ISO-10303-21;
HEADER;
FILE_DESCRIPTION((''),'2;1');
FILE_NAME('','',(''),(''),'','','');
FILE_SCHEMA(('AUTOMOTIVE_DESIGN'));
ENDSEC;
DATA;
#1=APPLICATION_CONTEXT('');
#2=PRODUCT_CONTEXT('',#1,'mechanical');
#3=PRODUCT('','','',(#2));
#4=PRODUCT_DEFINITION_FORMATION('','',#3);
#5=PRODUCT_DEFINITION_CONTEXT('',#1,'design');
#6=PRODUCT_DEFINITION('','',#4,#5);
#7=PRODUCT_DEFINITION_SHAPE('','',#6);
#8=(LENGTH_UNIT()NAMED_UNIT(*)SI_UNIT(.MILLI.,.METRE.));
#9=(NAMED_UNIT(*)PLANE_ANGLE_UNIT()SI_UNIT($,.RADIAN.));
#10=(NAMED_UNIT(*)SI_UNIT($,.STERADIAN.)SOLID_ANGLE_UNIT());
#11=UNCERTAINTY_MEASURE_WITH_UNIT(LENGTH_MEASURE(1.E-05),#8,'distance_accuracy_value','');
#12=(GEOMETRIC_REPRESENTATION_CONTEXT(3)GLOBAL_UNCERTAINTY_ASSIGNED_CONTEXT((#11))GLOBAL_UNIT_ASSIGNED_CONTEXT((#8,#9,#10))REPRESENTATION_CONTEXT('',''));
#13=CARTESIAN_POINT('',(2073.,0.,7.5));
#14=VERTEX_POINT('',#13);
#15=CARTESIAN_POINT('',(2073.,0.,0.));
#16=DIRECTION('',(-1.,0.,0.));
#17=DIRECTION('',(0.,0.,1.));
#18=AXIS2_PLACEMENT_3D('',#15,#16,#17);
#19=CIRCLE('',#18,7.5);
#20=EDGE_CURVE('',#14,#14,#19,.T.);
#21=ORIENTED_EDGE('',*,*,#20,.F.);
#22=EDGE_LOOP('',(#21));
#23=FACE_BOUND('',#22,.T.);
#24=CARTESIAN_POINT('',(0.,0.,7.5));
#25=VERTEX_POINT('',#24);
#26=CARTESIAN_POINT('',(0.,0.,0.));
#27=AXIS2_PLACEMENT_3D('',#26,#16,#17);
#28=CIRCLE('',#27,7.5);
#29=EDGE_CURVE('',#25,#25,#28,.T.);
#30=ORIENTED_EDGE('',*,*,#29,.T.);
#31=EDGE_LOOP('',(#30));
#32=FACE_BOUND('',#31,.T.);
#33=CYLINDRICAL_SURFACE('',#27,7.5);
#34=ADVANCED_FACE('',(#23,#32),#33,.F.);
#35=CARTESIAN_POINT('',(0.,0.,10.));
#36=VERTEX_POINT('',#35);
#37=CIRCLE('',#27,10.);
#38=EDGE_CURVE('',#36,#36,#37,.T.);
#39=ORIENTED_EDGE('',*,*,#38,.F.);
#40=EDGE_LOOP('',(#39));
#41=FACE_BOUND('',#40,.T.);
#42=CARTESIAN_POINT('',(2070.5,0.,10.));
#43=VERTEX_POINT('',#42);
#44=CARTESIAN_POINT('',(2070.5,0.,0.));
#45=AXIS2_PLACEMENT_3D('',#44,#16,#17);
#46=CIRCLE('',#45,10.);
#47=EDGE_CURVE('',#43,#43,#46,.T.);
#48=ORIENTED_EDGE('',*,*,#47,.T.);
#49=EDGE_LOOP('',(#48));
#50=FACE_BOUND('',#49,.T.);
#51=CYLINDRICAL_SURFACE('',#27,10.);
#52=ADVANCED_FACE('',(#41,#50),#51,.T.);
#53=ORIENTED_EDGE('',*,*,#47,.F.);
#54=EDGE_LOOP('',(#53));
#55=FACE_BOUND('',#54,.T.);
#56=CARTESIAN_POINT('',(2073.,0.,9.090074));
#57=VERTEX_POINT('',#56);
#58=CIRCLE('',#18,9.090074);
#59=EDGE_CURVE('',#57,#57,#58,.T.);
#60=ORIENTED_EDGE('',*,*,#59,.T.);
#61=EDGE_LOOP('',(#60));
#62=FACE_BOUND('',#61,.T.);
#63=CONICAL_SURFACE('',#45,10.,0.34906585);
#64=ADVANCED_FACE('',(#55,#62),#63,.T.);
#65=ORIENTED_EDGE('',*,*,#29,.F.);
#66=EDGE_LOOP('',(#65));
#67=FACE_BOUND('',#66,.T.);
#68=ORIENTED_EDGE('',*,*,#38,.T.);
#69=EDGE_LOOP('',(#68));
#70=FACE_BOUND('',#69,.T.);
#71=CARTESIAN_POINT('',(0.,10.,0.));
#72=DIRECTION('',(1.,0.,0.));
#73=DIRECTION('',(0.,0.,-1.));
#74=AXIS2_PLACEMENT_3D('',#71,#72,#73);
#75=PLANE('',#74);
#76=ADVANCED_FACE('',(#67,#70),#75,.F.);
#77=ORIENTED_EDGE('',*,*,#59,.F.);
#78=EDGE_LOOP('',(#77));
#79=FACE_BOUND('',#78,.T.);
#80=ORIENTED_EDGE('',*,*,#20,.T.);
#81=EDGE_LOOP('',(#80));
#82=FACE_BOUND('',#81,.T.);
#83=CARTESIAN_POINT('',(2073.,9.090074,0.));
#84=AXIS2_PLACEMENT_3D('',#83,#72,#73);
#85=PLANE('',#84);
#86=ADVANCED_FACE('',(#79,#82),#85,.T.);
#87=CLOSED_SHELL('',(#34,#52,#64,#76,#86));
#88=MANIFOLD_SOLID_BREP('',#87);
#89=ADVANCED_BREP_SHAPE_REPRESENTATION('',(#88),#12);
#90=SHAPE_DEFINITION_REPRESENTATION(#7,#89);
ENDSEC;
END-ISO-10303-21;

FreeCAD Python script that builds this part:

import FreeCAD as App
import Part
import Sketcher

V = App.Vector
Q = App.Units.Quantity


def add_polygon(sketch, points):
    """Adds a closed chain of lines whose ends are joined by coincident constraints."""
    first, n = sketch.GeometryCount, len(points)
    for a, b in zip(points, points[1:] + points[:1]):
        sketch.addGeometry(Part.LineSegment(App.Vector(*a, 0), App.Vector(*b, 0)), False)
    for i in range(n):
        sketch.addConstraint(Sketcher.Constraint("Coincident", first + i, 2, first + (i + 1) % n, 1))

doc = App.newDocument("Part")
params = doc.addObject("Spreadsheet::Sheet", "Params")
for row, (alias, value) in enumerate([
    ("sketch1_width", "2073 mm"),
    ("sketch1_width2", "2070.5 mm"),
    ("sketch1_height", "2.5 mm"),
    ("revolution_angle", "360 deg"),
], start=1):
    params.set(f"A{row}", alias)
    params.set(f"B{row}", "=" + value)
    params.setAlias(f"B{row}", alias)

body = doc.addObject("PartDesign::Body", "Body")

# Sketch on XY plane
sketch1 = body.newObject("Sketcher::SketchObject", "Sketch")
sketch1.AttachmentSupport = (doc.getObject("XY_Plane"), [""])
sketch1.MapMode = "FlatFace"
add_polygon(sketch1, [(0, 10), (0, 7.5), (2073, 7.5), (2073, 9.1), (2070.5, 10)])  # lines 0-4
sketch1.addConstraint(Sketcher.Constraint("Vertical", 0))
sketch1.addConstraint(Sketcher.Constraint("Horizontal", 1))
sketch1.addConstraint(Sketcher.Constraint("Vertical", 2))
sketch1.addConstraint(Sketcher.Constraint("Horizontal", 4))
sketch1.addConstraint(Sketcher.Constraint("PointOnObject", 0, 2, -2))
sketch1.addConstraint(Sketcher.Constraint("DistanceX", 1, 1, 1, 2, Q("2073 mm")))
sketch1.addConstraint(Sketcher.Constraint("Angle", 3, Q("160 deg")))
sketch1.addConstraint(Sketcher.Constraint("DistanceX", 4, 2, 4, 1, Q("2070.5 mm")))
sketch1.addConstraint(Sketcher.Constraint("DistanceY", 0, 2, 0, 1, Q("2.5 mm")))
sketch1.addConstraint(Sketcher.Constraint("DistanceY", -1, 1, 3, 2, Q("10 mm")))
sketch1.setExpression("Constraints[10]", "Params.sketch1_width")
sketch1.setExpression("Constraints[12]", "Params.sketch1_width2")
sketch1.setExpression("Constraints[13]", "Params.sketch1_height")
revolution = body.newObject("PartDesign::Revolution", "Revolution")
revolution.Profile = sketch1
revolution.ReferenceAxis = (sketch1, ["H_Axis"])
revolution.setExpression("Angle", "Params.revolution_angle")

doc.recompute()
